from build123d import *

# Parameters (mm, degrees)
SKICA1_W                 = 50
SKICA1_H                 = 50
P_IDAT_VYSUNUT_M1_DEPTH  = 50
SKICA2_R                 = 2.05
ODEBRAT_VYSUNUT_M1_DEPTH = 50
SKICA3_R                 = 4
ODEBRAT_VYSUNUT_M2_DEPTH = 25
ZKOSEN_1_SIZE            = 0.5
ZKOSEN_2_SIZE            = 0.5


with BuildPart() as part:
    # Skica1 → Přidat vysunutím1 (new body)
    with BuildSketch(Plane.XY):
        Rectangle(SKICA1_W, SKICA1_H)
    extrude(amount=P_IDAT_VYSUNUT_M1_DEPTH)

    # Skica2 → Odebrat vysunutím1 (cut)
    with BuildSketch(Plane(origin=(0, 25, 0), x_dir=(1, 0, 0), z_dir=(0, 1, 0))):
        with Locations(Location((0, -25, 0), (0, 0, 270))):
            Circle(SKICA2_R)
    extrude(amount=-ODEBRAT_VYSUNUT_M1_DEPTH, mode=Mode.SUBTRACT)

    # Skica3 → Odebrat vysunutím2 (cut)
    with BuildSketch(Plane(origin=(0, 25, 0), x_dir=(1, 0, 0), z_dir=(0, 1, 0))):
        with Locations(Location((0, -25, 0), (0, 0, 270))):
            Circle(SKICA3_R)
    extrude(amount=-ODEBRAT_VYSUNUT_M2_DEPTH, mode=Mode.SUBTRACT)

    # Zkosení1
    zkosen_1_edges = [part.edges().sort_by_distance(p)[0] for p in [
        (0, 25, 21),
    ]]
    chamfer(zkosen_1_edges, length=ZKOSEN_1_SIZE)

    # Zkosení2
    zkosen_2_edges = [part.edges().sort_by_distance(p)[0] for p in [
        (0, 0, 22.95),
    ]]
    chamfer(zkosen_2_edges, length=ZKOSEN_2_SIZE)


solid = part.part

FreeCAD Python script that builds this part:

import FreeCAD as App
import Part
import Sketcher

V = App.Vector
Q = App.Units.Quantity


def edges_at(feature, points):
    """Names of the edges that pass closest to the given points."""
    edges = feature.Shape.Edges
    near = lambda p: min(range(len(edges)), key=lambda i: edges[i].distToShape(Part.Vertex(*p))[0])
    return sorted({f"Edge{near(p) + 1}" for p in points})


def add_polygon(sketch, points):
    """Adds a closed chain of lines whose ends are joined by coincident constraints."""
    first, n = sketch.GeometryCount, len(points)
    for a, b in zip(points, points[1:] + points[:1]):
        sketch.addGeometry(Part.LineSegment(App.Vector(*a, 0), App.Vector(*b, 0)), False)
    for i in range(n):
        sketch.addConstraint(Sketcher.Constraint("Coincident", first + i, 2, first + (i + 1) % n, 1))

doc = App.newDocument("Part")
body = doc.addObject("PartDesign::Body", "Body")

# Sketch on XY plane
sketch1 = doc.addObject("Sketcher::SketchObject", "Sketch")
body.addObject(sketch1)
sketch1.AttachmentSupport = (doc.XY_Plane, [""])
sketch1.MapMode = "FlatFace"
add_polygon(sketch1, [(-25, 25), (-25, -25), (25, -25), (25, 25)])  # lines 0-3
sketch1.addConstraint(Sketcher.Constraint("Vertical", 0))
sketch1.addConstraint(Sketcher.Constraint("Horizontal", 1))
sketch1.addConstraint(Sketcher.Constraint("Vertical", 2))
sketch1.addConstraint(Sketcher.Constraint("Horizontal", 3))
sketch1.addConstraint(Sketcher.Constraint("Symmetric", 0, 2, 2, 2, -1, 1))
sketch1.addConstraint(Sketcher.Constraint("Equal", 3, 0))
sketch1.addConstraint(Sketcher.Constraint("DistanceX", 1, 1, 1, 2, Q("50 mm")))
pad1 = doc.addObject("PartDesign::Pad", "Pad")
body.addObject(pad1)
pad1.Profile = sketch1
pad1.Length = 50

# Sketch on XZ plane
sketch2 = doc.addObject("Sketcher::SketchObject", "Sketch001")
body.addObject(sketch2)
sketch2.AttachmentSupport = (doc.XZ_Plane, [""])
sketch2.MapMode = "FlatFace"
sketch2.AttachmentOffset = App.Placement(V(0, 0, -25), App.Rotation())
sketch2.addGeometry(Part.Circle(V(0, 25, 0), V(0, 0, 1), 2), False)
sketch2.addConstraint(Sketcher.Constraint("PointOnObject", 0, 3, -2))
sketch2.addConstraint(Sketcher.Constraint("Diameter", 0, Q("4.1 mm")))
sketch2.addConstraint(Sketcher.Constraint("DistanceY", -1, 1, 0, 3, Q("25 mm")))
pocket1 = doc.addObject("PartDesign::Pocket", "Pocket")
body.addObject(pocket1)
pocket1.Profile = sketch2
pocket1.Length = 50
pocket1.Reversed = True

# Sketch on XZ plane
sketch3 = doc.addObject("Sketcher::SketchObject", "Sketch002")
body.addObject(sketch3)
sketch3.AttachmentSupport = (doc.XZ_Plane, [""])
sketch3.MapMode = "FlatFace"
sketch3.AttachmentOffset = App.Placement(V(0, 0, -25), App.Rotation())
sketch3.addGeometry(Part.Circle(V(0, 25, 0), V(0, 0, 1), 4), False)
sketch3.addConstraint(Sketcher.Constraint("PointOnObject", 0, 3, -2))
sketch3.addConstraint(Sketcher.Constraint("Diameter", 0, Q("8 mm")))
sketch3.addConstraint(Sketcher.Constraint("DistanceY", -1, 1, 0, 3, Q("25 mm")))
pocket2 = doc.addObject("PartDesign::Pocket", "Pocket001")
body.addObject(pocket2)
pocket2.Profile = sketch3
pocket2.Length = 25
pocket2.Reversed = True
doc.recompute()

chamfer = doc.addObject("PartDesign::Chamfer", "Chamfer")
body.addObject(chamfer)
chamfer.Base = (pocket2, edges_at(pocket2, [(0, 25, 21)]))
chamfer.Size = 0.5
doc.recompute()

chamfer2 = doc.addObject("PartDesign::Chamfer", "Chamfer001")
body.addObject(chamfer2)
chamfer2.Base = (chamfer, edges_at(chamfer, [(0, 0, 22.95)]))
chamfer2.Size = 0.5

doc.recompute()
